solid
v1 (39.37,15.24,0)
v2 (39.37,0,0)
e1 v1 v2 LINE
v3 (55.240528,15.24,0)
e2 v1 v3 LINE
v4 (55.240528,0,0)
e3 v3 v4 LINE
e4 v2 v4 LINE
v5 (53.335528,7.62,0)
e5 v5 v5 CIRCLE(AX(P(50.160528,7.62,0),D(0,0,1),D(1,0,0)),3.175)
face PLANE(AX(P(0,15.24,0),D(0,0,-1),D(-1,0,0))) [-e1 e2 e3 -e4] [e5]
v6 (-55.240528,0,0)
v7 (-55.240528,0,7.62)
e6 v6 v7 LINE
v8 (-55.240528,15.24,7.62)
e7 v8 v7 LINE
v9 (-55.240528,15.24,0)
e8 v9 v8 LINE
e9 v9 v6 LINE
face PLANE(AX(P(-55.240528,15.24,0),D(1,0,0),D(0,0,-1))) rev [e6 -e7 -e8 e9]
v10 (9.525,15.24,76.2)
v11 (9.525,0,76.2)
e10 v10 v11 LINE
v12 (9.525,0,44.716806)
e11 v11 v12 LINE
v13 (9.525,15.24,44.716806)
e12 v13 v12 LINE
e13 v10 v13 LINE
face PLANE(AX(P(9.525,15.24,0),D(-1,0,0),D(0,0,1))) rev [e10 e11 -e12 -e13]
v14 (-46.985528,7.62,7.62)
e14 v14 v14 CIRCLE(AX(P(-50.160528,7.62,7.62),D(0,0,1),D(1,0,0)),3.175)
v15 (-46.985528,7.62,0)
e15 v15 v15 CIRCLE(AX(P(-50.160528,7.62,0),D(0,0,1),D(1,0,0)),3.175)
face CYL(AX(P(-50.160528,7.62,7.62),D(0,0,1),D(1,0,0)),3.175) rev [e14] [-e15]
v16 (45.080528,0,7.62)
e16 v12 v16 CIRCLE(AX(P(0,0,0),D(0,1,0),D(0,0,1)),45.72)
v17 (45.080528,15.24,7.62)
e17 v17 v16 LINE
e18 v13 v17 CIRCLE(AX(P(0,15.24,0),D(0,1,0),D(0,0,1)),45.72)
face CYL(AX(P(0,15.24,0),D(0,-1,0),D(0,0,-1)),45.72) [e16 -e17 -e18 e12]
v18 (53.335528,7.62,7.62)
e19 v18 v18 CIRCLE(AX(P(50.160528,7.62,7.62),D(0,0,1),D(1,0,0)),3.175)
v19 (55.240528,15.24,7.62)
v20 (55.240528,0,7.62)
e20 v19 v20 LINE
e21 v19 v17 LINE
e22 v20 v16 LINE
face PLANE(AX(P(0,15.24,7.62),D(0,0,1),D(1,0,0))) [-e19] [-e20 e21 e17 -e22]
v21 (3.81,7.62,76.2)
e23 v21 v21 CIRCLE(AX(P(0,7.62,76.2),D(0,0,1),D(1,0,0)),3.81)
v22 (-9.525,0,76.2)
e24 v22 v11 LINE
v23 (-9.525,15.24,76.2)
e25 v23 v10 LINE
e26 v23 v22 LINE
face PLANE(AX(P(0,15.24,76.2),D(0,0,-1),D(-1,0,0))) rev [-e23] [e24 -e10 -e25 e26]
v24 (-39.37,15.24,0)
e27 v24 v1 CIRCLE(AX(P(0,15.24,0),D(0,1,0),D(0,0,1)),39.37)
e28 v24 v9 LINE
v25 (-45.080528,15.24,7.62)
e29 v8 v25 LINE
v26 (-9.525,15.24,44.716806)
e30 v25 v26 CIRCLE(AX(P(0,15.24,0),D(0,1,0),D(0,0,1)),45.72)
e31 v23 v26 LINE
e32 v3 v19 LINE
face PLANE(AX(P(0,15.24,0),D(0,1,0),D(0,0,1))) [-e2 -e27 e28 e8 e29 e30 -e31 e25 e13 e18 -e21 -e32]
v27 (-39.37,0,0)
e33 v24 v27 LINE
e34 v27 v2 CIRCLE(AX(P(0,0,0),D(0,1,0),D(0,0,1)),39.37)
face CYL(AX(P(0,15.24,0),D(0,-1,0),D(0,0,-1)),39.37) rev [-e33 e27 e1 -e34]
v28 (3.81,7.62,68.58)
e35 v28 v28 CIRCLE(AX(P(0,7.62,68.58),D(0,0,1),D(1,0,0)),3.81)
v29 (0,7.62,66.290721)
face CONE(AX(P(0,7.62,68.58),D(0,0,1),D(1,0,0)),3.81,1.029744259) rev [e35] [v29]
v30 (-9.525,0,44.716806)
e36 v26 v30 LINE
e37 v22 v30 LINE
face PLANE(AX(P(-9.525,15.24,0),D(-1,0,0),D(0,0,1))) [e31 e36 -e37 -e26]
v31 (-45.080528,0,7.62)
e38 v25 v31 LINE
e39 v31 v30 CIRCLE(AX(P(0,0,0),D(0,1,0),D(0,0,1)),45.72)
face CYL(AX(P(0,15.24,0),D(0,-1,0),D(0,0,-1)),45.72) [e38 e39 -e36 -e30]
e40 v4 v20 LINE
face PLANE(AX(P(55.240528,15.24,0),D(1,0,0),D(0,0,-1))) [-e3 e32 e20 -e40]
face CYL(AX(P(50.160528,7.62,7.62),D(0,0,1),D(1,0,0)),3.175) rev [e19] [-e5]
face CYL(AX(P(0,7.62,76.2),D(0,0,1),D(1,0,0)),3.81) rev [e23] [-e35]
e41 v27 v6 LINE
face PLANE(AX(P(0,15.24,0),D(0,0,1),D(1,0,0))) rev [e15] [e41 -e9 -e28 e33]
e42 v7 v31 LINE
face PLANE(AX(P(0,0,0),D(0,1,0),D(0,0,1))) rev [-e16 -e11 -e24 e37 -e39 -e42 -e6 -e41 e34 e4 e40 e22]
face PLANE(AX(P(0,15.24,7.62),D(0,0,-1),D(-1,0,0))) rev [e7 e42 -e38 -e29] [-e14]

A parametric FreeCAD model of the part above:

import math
import FreeCAD as App
import Part
import Sketcher
from FreeCAD import Vector
Q = App.Units.Quantity

doc = App.newDocument("Part")
body = doc.addObject("PartDesign::Body", "Body")

# Sketch on XZ plane
sketch1 = doc.addObject("Sketcher::SketchObject", "Sketch")
body.addObject(sketch1)
sketch1.AttachmentSupport = (doc.XZ_Plane, [""])
sketch1.MapMode = "FlatFace"
sketch1.addGeometry([
    Part.LineSegment(Vector(-39.37, 0, 0), Vector(-55.240528, 0, 0)),  # 0
    Part.LineSegment(Vector(-55.240528, 0, 0), Vector(-55.240528, 7.62, 0)),  # 1
    Part.LineSegment(Vector(-55.240528, 7.62, 0), Vector(-45.080528, 7.62, 0)),  # 2
    Part.ArcOfCircle(Part.Circle(Vector(0, 0, 0), Vector(0, 0, 1), 45.72), math.radians(102.024699), math.radians(170.405932)),  # 3
    Part.LineSegment(Vector(-9.525, 44.716806, 0), Vector(-9.525, 76.2, 0)),  # 4
    Part.LineSegment(Vector(-9.525, 76.2, 0), Vector(9.525, 76.2, 0)),  # 5
    Part.LineSegment(Vector(9.525, 76.2, 0), Vector(9.525, 44.716806, 0)),  # 6
    Part.ArcOfCircle(Part.Circle(Vector(0, 0, 0), Vector(0, 0, 1), 45.72), math.radians(9.594068), math.radians(77.975301)),  # 7
    Part.LineSegment(Vector(45.080528, 7.62, 0), Vector(55.240528, 7.62, 0)),  # 8
    Part.LineSegment(Vector(55.240528, 7.62, 0), Vector(55.240528, 0, 0)),  # 9
    Part.LineSegment(Vector(55.240528, 0, 0), Vector(39.37, 0, 0)),  # 10
    Part.ArcOfCircle(Part.Circle(Vector(0, 0, 0), Vector(0, 0, 1), 39.37), math.radians(0), math.radians(180)),  # 11
], False)
sketch1.addConstraint([
    Sketcher.Constraint("Coincident", 0, 2, 1, 1),
    Sketcher.Constraint("Coincident", 1, 2, 2, 1),
    Sketcher.Constraint("Coincident", 2, 2, 3, 2),
    Sketcher.Constraint("Coincident", 3, 1, 4, 1),
    Sketcher.Constraint("Coincident", 4, 2, 5, 1),
    Sketcher.Constraint("Coincident", 5, 2, 6, 1),
    Sketcher.Constraint("Coincident", 6, 2, 7, 2),
    Sketcher.Constraint("Coincident", 7, 1, 8, 1),
    Sketcher.Constraint("Coincident", 8, 2, 9, 1),
    Sketcher.Constraint("Coincident", 9, 2, 10, 1),
    Sketcher.Constraint("Coincident", 10, 2, 11, 1),
    Sketcher.Constraint("Coincident", 11, 2, 0, 1),
    Sketcher.Constraint("Horizontal", 0),
    Sketcher.Constraint("Vertical", 1),
    Sketcher.Constraint("Horizontal", 2),
    Sketcher.Constraint("Vertical", 4),
    Sketcher.Constraint("Horizontal", 5),
    Sketcher.Constraint("Vertical", 6),
    Sketcher.Constraint("Horizontal", 8),
    Sketcher.Constraint("Vertical", 9),
    Sketcher.Constraint("Horizontal", 10),
    Sketcher.Constraint("Coincident", 3, 3, -1, 1),
    Sketcher.Constraint("Coincident", 7, 3, -1, 1),
    Sketcher.Constraint("Coincident", 11, 3, -1, 1),
    Sketcher.Constraint("Equal", 3, 7),
    Sketcher.Constraint("Symmetric", 0, 2, 9, 2, -1, 1),
    Sketcher.Constraint("PointOnObject", 0, 2, -1),
    Sketcher.Constraint("Horizontal", 3, 1, 6, 2),
    Sketcher.Constraint("Horizontal", 2, 2, 7, 1),
    Sketcher.Constraint("Radius", 3, Q("1.8 in")),
    Sketcher.Constraint("Radius", 11, Q("1.55 in")),
    Sketcher.Constraint("DistanceX", 2, 1, 2, 2, Q("0.4 in")),
    Sketcher.Constraint("DistanceY", 1, 1, 1, 2, Q("0.3 in")),
    Sketcher.Constraint("DistanceY", -1, 1, 4, 2, Q("3 in")),
    Sketcher.Constraint("DistanceX", 5, 1, 5, 2, Q("0.75 in")),
])
pad1 = doc.addObject("PartDesign::Pad", "Pad")
body.addObject(pad1)
pad1.Profile = sketch1
pad1.Length = Q("0.6 in")
pad1.Reversed = True

# Sketch on XY plane
sketch2 = doc.addObject("Sketcher::SketchObject", "Sketch001")
body.addObject(sketch2)
sketch2.AttachmentSupport = (doc.XY_Plane, [""])
sketch2.MapMode = "FlatFace"
sketch2.AttachmentOffset = App.Placement(Vector(0, 0, 3 * 25.4), App.Rotation())
sketch2.addGeometry(Part.Circle(Vector(0, 7.62, 0), Vector(0, 0, 1), 3.81), False)
sketch2.addConstraint([
    Sketcher.Constraint("PointOnObject", 0, 3, -2),
    Sketcher.Constraint("Diameter", 0, Q("0.3 in")),
    Sketcher.Constraint("DistanceY", -1, 1, 0, 3, Q("0.3 in")),
])
doc.recompute()
hole = doc.addObject("PartDesign::Hole", "Hole")
body.addObject(hole)
hole.Profile = sketch2
hole.ThreadType = "None"
hole.Diameter = Q("0.3 in")
hole.DepthType = "Dimension"
hole.Depth = Q("0.3 in")
hole.DrillPoint = "Angled"
hole.DrillPointAngle = 118

# Sketch on XY plane
sketch3 = doc.addObject("Sketcher::SketchObject", "Sketch002")
body.addObject(sketch3)
sketch3.AttachmentSupport = (doc.XY_Plane, [""])
sketch3.MapMode = "FlatFace"
sketch3.AttachmentOffset = App.Placement(Vector(0, 0, 0.3 * 25.4), App.Rotation())
sketch3.addGeometry([
    Part.Circle(Vector(-50.160528, 7.62, 0), Vector(0, 0, 1), 3.175),
    Part.Circle(Vector(50.160528, 7.62, 0), Vector(0, 0, 1), 3.175),
], False)
sketch3.addConstraint([
    Sketcher.Constraint("Equal", 0, 1),
    Sketcher.Constraint("Symmetric", 0, 3, 1, 3, -2),
    Sketcher.Constraint("Diameter", 0, Q("0.25 in")),
    Sketcher.Constraint("DistanceY", -1, 1, 0, 3, Q("0.3 in")),
    Sketcher.Constraint("DistanceX", 0, 3, -1, 1, 50.160528),
])
doc.recompute()
hole2 = doc.addObject("PartDesign::Hole", "Hole001")
body.addObject(hole2)
hole2.Profile = sketch3
hole2.ThreadType = "None"
hole2.Diameter = Q("0.25 in")
hole2.DepthType = "Dimension"
hole2.Depth = Q("0.3 in")
hole2.DrillPoint = "Angled"
hole2.DrillPointAngle = 118

doc.recompute()
